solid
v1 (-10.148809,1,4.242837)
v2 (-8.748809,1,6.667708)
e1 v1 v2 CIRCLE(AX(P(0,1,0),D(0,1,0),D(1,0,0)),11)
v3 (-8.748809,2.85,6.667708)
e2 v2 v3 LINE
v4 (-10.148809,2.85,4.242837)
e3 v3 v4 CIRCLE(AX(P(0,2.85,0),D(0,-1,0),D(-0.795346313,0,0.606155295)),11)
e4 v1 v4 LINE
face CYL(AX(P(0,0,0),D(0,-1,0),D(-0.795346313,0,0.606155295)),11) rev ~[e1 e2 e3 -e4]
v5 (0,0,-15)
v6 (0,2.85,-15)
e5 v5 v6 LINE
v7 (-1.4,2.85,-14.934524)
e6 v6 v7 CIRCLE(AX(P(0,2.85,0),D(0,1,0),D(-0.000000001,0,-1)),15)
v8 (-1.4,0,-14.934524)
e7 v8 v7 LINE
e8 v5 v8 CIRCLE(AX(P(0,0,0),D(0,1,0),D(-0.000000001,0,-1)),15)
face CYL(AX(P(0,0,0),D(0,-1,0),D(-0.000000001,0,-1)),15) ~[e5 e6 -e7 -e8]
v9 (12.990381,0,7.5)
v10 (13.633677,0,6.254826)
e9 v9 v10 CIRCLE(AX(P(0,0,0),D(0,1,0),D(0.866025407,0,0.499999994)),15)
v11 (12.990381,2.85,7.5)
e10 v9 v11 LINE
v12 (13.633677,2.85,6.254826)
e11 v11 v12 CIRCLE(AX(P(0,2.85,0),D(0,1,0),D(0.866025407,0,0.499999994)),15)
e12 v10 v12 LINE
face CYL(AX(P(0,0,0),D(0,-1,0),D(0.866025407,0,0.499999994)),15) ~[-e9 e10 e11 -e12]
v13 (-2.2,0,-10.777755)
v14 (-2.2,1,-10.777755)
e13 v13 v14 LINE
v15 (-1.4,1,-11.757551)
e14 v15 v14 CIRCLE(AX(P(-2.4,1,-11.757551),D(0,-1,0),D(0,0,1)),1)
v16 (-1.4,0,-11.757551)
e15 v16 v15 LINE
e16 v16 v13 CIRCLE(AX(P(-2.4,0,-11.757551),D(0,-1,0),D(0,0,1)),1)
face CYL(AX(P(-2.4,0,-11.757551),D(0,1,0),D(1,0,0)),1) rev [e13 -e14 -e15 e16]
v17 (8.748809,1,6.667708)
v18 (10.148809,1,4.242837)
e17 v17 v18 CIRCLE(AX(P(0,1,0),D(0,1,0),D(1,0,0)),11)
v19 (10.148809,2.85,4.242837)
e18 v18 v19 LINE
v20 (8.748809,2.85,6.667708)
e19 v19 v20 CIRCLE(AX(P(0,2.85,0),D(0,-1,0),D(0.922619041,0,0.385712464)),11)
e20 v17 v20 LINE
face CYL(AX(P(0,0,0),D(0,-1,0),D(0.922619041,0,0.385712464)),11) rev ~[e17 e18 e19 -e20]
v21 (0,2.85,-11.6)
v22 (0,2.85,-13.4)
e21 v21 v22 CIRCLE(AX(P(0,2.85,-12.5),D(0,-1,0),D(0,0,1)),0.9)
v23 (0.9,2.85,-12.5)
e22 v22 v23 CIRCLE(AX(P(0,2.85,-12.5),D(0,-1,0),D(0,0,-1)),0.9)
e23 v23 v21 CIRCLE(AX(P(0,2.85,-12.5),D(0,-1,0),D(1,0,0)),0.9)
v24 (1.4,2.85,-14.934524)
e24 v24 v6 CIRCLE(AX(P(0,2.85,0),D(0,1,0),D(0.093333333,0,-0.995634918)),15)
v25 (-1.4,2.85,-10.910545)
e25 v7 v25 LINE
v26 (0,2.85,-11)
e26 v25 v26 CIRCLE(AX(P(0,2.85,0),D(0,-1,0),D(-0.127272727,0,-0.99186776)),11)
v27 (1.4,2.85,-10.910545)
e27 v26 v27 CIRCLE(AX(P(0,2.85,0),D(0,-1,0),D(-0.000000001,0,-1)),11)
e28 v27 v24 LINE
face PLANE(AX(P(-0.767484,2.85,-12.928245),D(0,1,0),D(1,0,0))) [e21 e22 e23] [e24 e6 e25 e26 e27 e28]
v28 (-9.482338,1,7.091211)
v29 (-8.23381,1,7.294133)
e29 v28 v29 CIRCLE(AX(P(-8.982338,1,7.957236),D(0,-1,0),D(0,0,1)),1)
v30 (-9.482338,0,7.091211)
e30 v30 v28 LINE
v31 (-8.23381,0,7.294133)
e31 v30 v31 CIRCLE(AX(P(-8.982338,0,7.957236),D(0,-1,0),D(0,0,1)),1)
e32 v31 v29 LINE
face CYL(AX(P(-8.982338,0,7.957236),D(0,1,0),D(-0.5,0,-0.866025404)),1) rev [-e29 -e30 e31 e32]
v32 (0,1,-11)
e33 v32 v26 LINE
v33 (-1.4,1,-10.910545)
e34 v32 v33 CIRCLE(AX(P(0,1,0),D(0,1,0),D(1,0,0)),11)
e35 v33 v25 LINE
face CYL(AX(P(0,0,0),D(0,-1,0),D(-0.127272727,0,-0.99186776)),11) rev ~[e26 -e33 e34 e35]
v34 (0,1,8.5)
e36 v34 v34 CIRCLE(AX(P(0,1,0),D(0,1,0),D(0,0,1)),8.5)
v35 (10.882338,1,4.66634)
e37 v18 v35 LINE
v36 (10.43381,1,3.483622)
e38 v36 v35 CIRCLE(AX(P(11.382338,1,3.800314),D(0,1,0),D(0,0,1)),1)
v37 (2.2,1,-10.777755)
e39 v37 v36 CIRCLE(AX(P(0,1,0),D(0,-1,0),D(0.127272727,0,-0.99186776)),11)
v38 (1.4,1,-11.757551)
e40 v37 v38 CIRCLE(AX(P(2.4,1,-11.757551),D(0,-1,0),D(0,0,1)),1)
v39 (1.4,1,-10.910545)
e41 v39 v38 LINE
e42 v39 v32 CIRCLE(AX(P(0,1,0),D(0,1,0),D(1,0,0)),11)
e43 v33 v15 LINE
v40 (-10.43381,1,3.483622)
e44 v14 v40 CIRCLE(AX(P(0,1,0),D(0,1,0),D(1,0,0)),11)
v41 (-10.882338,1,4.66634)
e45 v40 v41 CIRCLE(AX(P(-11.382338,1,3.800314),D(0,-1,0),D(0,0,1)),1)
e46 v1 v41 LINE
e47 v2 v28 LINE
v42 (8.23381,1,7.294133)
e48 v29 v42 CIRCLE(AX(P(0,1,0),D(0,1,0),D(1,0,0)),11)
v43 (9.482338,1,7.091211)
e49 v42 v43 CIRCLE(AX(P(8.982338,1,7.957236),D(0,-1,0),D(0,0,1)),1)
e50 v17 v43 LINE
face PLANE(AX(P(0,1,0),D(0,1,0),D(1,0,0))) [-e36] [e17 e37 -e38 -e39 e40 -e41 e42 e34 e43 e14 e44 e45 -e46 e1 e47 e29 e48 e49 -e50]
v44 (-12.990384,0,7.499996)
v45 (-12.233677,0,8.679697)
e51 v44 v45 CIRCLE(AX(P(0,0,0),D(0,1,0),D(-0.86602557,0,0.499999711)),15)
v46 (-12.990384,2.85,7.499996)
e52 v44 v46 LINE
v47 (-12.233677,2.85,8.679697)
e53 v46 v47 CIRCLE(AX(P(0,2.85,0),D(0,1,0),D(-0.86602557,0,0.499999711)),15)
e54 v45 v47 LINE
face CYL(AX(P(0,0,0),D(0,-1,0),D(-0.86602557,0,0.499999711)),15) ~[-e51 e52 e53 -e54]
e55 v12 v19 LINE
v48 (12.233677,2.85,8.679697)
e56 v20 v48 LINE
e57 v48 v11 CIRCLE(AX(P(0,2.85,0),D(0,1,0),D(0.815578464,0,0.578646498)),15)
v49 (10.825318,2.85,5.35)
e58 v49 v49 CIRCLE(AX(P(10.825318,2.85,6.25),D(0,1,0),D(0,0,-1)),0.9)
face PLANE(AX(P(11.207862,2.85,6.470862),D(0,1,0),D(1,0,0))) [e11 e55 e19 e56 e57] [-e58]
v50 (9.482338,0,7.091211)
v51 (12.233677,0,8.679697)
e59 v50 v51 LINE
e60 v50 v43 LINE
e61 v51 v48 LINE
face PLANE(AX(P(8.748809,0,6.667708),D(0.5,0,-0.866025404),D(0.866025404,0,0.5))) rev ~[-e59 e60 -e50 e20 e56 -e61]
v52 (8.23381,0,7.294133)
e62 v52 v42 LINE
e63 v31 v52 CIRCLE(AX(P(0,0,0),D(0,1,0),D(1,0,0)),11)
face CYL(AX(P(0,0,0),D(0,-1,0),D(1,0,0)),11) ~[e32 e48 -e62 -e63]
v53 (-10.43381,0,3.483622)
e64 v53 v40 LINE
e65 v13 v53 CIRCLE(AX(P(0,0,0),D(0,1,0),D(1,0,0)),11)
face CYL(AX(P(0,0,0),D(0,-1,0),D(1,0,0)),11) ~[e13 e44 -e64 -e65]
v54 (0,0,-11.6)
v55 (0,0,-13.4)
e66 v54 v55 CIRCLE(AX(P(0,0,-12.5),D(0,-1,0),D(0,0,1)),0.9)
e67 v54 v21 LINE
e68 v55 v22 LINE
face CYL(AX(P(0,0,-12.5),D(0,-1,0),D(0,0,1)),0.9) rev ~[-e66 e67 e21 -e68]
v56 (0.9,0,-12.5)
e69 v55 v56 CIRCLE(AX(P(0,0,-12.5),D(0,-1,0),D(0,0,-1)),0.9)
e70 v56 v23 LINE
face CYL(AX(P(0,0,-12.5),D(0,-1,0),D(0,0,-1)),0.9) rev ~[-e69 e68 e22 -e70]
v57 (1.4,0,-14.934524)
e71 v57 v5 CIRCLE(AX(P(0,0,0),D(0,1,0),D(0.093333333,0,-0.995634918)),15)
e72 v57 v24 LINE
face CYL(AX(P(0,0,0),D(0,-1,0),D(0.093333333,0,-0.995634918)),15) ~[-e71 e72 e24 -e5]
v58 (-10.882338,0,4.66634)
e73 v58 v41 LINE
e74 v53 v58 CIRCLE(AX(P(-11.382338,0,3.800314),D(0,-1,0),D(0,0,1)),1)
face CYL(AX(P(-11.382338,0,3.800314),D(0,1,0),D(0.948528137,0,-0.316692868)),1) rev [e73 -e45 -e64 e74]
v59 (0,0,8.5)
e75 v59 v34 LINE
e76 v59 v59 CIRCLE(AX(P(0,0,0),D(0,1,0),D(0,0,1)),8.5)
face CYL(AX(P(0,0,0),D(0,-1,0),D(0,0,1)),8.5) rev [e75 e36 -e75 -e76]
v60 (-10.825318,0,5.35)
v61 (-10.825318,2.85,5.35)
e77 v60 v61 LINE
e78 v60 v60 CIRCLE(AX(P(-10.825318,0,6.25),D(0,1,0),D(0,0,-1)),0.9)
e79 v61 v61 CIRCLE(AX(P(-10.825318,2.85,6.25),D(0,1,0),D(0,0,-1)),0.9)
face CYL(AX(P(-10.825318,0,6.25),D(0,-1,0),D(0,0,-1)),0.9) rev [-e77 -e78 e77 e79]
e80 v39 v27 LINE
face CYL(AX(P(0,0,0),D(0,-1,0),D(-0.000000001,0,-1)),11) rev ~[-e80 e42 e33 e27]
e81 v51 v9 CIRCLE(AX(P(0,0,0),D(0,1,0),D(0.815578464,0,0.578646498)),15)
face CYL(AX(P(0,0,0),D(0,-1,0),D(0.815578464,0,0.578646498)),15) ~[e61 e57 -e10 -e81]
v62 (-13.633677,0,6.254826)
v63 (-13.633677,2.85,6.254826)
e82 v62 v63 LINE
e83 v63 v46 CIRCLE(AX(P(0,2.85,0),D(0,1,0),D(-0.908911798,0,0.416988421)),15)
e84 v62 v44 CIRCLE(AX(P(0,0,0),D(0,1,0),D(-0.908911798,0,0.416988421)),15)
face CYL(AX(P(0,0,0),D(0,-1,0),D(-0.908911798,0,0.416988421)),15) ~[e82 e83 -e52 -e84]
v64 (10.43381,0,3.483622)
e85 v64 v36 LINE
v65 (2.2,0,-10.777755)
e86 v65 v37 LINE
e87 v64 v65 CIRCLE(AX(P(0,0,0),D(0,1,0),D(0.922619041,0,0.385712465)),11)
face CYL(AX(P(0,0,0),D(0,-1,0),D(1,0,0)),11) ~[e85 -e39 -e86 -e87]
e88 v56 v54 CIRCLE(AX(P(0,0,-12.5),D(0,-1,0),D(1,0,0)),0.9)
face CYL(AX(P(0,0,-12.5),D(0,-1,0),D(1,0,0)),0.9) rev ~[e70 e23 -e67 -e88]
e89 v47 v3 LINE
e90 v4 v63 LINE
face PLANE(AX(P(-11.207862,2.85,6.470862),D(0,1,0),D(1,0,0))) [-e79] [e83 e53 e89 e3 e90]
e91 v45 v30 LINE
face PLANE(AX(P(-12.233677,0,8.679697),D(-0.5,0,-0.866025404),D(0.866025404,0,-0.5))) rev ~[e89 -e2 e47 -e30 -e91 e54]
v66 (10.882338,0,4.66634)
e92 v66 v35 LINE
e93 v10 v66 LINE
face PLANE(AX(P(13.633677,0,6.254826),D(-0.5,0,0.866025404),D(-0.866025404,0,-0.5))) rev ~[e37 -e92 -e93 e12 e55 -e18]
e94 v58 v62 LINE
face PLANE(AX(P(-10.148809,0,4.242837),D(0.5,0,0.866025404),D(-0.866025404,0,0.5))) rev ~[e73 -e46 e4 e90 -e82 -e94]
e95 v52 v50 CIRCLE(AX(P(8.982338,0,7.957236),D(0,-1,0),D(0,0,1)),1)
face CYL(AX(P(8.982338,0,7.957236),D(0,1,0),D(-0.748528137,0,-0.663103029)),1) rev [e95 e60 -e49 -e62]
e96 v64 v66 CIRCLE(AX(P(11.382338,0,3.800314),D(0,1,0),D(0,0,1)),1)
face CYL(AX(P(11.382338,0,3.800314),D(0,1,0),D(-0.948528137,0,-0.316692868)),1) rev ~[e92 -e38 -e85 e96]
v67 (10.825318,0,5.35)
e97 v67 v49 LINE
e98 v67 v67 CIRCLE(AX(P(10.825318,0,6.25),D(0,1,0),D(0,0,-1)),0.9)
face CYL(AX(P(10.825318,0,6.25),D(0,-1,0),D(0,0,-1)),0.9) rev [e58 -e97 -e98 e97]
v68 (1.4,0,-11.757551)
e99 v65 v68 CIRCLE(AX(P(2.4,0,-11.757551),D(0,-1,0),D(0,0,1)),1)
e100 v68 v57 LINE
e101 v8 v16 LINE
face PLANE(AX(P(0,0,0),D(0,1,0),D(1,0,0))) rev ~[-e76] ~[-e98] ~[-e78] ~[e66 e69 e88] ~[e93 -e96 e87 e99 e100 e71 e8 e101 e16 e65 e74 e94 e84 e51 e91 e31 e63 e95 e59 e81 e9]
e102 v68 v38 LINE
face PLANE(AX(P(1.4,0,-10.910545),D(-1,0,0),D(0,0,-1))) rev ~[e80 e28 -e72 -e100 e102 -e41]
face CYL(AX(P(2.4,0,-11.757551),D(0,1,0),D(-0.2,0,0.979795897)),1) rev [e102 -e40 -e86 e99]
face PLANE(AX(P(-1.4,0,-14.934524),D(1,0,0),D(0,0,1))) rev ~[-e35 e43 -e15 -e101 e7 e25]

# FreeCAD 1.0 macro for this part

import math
import FreeCAD as App
import Part
import Sketcher
from FreeCAD import Vector
Q = App.Units.Quantity


def edges_at(feature, points):
    """Names of the edges that pass closest to the given points."""
    edges = feature.Shape.Edges
    near = lambda p: min(range(len(edges)), key=lambda i: edges[i].distToShape(Part.Vertex(*p))[0])
    return sorted({f"Edge{near(p) + 1}" for p in points})

doc = App.newDocument("Part")
body = doc.addObject("PartDesign::Body", "Body")
body.AllowCompound = True

# Sketch on XZ plane
sketch1 = doc.addObject("Sketcher::SketchObject", "Sketch")
body.addObject(sketch1)
sketch1.AttachmentSupport = (doc.XZ_Plane, [""])
sketch1.MapMode = "FlatFace"
sketch1.addGeometry([
    Part.ArcOfCircle(Part.Circle(Vector(0, 0, 0), Vector(0, 0, 1), 11), math.radians(142.69), math.radians(157.31)),  # 0
    Part.LineSegment(Vector(-10.1, 4.2, 0), Vector(-13.6, 6.3, 0)),  # 1
    Part.ArcOfCircle(Part.Circle(Vector(0, 0, 0), Vector(0, 0, 1), 15), math.radians(150), math.radians(155.36)),  # 2
    Part.ArcOfCircle(Part.Circle(Vector(0, 0, 0), Vector(0, 0, 1), 15), math.radians(144.64), math.radians(150)),  # 3
    Part.LineSegment(Vector(-12.2, 8.7, 0), Vector(-8.7, 6.7, 0)),  # 4
    Part.Circle(Vector(-10.8, 6.2, 0), Vector(0, 0, 1), 0.9),  # 5
    Part.ArcOfCircle(Part.Circle(Vector(0, 0, 0), Vector(0, 0, 1), 11), math.radians(-97.31), math.radians(-90)),  # 6
    Part.ArcOfCircle(Part.Circle(Vector(0, 0, 0), Vector(0, 0, 1), 11), math.radians(-90), math.radians(-82.69)),  # 7
    Part.LineSegment(Vector(1.4, -10.9, 0), Vector(1.4, -14.9, 0)),  # 8
    Part.ArcOfCircle(Part.Circle(Vector(0, 0, 0), Vector(0, 0, 1), 15), math.radians(-90), math.radians(-84.64)),  # 9
    Part.ArcOfCircle(Part.Circle(Vector(0, 0, 0), Vector(0, 0, 1), 15), math.radians(-95.36), math.radians(-90)),  # 10
    Part.LineSegment(Vector(-1.4, -14.9, 0), Vector(-1.4, -10.9, 0)),  # 11
    Part.ArcOfCircle(Part.Circle(Vector(0, -12.5, 0), Vector(0, 0, 1), 0.9), math.radians(90), math.radians(270)),  # 12
    Part.ArcOfCircle(Part.Circle(Vector(0, -12.5, 0), Vector(0, 0, 1), 0.9), math.radians(-90), math.radians(0)),  # 13
    Part.ArcOfCircle(Part.Circle(Vector(0, -12.5, 0), Vector(0, 0, 1), 0.9), math.radians(0), math.radians(90)),  # 14
    Part.LineSegment(Vector(13.6, 6.3, 0), Vector(10.1, 4.2, 0)),  # 15
    Part.ArcOfCircle(Part.Circle(Vector(0, 0, 0), Vector(0, 0, 1), 11), math.radians(22.69), math.radians(37.31)),  # 16
    Part.LineSegment(Vector(8.7, 6.7, 0), Vector(12.2, 8.7, 0)),  # 17
    Part.ArcOfCircle(Part.Circle(Vector(0, 0, 0), Vector(0, 0, 1), 15), math.radians(30), math.radians(35.36)),  # 18
    Part.ArcOfCircle(Part.Circle(Vector(0, 0, 0), Vector(0, 0, 1), 15), math.radians(24.64), math.radians(30)),  # 19
    Part.Circle(Vector(10.8, 6.2, 0), Vector(0, 0, 1), 0.9),  # 20
], False)
sketch1.addConstraint([
    Sketcher.Constraint("Coincident", 0, 2, 1, 1),
    Sketcher.Constraint("Coincident", 1, 2, 2, 2),
    Sketcher.Constraint("Tangent", 2, 1, 3, 2),
    Sketcher.Constraint("Coincident", 3, 1, 4, 1),
    Sketcher.Constraint("Coincident", 4, 2, 0, 1),
    Sketcher.Constraint("Tangent", 6, 2, 7, 1),
    Sketcher.Constraint("Coincident", 7, 2, 8, 1),
    Sketcher.Constraint("Coincident", 8, 2, 9, 2),
    Sketcher.Constraint("Tangent", 9, 1, 10, 2),
    Sketcher.Constraint("Coincident", 10, 1, 11, 1),
    Sketcher.Constraint("Coincident", 11, 2, 6, 1),
    Sketcher.Constraint("Tangent", 12, 2, 13, 1),
    Sketcher.Constraint("Tangent", 13, 2, 14, 1),
    Sketcher.Constraint("Tangent", 14, 2, 12, 1),
    Sketcher.Constraint("Coincident", 15, 2, 16, 1),
    Sketcher.Constraint("Coincident", 16, 2, 17, 1),
    Sketcher.Constraint("Coincident", 17, 2, 18, 2),
    Sketcher.Constraint("Tangent", 18, 1, 19, 2),
    Sketcher.Constraint("Coincident", 19, 1, 15, 1),
    Sketcher.Constraint("Vertical", 8),
    Sketcher.Constraint("Vertical", 11),
    Sketcher.Constraint("Coincident", 0, 3, -1, 1),
    Sketcher.Constraint("Coincident", 2, 3, -1, 1),
    Sketcher.Constraint("Coincident", 6, 3, -1, 1),
    Sketcher.Constraint("Coincident", 9, 3, -1, 1),
    Sketcher.Constraint("Coincident", 16, 3, -1, 1),
    Sketcher.Constraint("Coincident", 18, 3, -1, 1),
    Sketcher.Constraint("Equal", 2, 3),
    Sketcher.Constraint("Equal", 0, 6),
    Sketcher.Constraint("Equal", 6, 7),
    Sketcher.Constraint("Equal", 3, 9),
    Sketcher.Constraint("Equal", 9, 10),
    Sketcher.Constraint("Equal", 5, 12),
    Sketcher.Constraint("Equal", 7, 16),
    Sketcher.Constraint("Equal", 10, 18),
    Sketcher.Constraint("Equal", 18, 19),
    Sketcher.Constraint("Equal", 14, 20),
    Sketcher.Constraint("Symmetric", 5, 3, 20, 3, -2),
    Sketcher.Constraint("PointOnObject", 12, 3, -2),
    Sketcher.Constraint("PointOnObject", 6, 2, -2),
    Sketcher.Constraint("PointOnObject", 9, 1, -2),
    Sketcher.Constraint("PointOnObject", 12, 2, -2),
    Sketcher.Constraint("PointOnObject", 14, 2, -2),
    Sketcher.Constraint("Parallel", 1, 4),
    Sketcher.Constraint("Parallel", 15, 17),
    Sketcher.Constraint("Horizontal", 8, 2, 10, 1),
    Sketcher.Constraint("Horizontal", 14, 3, 13, 2),
    Sketcher.Constraint("Horizontal", 0, 2, 15, 2),
    Sketcher.Constraint("Horizontal", 4, 2, 16, 2),
    Sketcher.Constraint("Horizontal", 3, 1, 17, 2),
    Sketcher.Constraint("Equal", 1, 4),
    Sketcher.Constraint("Radius", 0, Q("11 mm")),
    Sketcher.Constraint("Radius", 2, Q("15 mm")),
    Sketcher.Constraint("Diameter", 5, Q("1.8 mm")),
    Sketcher.Constraint("Angle", 1, Q("150 deg")),
    Sketcher.Constraint("DistanceY", 12, 3, -1, 1, Q("12.5 mm")),
    Sketcher.Constraint("DistanceX", -1, 1, 7, 2, Q("1.4 mm")),
    Sketcher.Constraint("DistanceY", -1, 1, 18, 1, Q("7.5 mm")),
    Sketcher.Constraint("DistanceX", 1, 2, 3, 1, Q("1.4 mm")),
    Sketcher.Constraint("DistanceY", -1, 1, 5, 3, Q("6.25 mm")),
    Sketcher.Constraint("DistanceY", 2, 1, 3, 1, Q("1.179702 mm")),
    Sketcher.Constraint("DistanceX", 5, 3, 0, 2, Q("0.676508 mm")),
])
pad1 = doc.addObject("PartDesign::Pad", "Pad")
body.addObject(pad1)
pad1.Profile = sketch1
pad1.Length = 2.85
pad1.Reversed = True

# Sketch on XZ plane
sketch2 = doc.addObject("Sketcher::SketchObject", "Sketch001")
body.addObject(sketch2)
sketch2.AttachmentSupport = (doc.XZ_Plane, [""])
sketch2.MapMode = "FlatFace"
sketch2.addGeometry([
    Part.Circle(Vector(0, 0, 0), Vector(0, 0, 1), 11),
    Part.Circle(Vector(0, 0, 0), Vector(0, 0, 1), 8),
], False)
sketch2.addConstraint([
    Sketcher.Constraint("Coincident", 0, 3, -1, 1),
    Sketcher.Constraint("Coincident", 1, 3, -1, 1),
    Sketcher.Constraint("Diameter", 0, Q("22 mm")),
    Sketcher.Constraint("Diameter", 1, Q("17 mm")),
])
pad2 = doc.addObject("PartDesign::Pad", "Pad001")
body.addObject(pad2)
pad2.Profile = sketch2
pad2.Length = 1
pad2.Reversed = True
doc.recompute()

fillet = doc.addObject("PartDesign::Fillet", "Fillet")
body.addObject(fillet)
fillet.Base = (pad2, edges_at(pad2, [
    (-10.149, 0.5, 4.243),
    (-8.749, 0.5, 6.668),
    (-1.4, 0.5, -10.911),
    (1.4, 0.5, -10.911),
    (10.149, 0.5, 4.243),
    (8.749, 0.5, 6.668),
]))
fillet.Radius = 1

doc.recompute()
